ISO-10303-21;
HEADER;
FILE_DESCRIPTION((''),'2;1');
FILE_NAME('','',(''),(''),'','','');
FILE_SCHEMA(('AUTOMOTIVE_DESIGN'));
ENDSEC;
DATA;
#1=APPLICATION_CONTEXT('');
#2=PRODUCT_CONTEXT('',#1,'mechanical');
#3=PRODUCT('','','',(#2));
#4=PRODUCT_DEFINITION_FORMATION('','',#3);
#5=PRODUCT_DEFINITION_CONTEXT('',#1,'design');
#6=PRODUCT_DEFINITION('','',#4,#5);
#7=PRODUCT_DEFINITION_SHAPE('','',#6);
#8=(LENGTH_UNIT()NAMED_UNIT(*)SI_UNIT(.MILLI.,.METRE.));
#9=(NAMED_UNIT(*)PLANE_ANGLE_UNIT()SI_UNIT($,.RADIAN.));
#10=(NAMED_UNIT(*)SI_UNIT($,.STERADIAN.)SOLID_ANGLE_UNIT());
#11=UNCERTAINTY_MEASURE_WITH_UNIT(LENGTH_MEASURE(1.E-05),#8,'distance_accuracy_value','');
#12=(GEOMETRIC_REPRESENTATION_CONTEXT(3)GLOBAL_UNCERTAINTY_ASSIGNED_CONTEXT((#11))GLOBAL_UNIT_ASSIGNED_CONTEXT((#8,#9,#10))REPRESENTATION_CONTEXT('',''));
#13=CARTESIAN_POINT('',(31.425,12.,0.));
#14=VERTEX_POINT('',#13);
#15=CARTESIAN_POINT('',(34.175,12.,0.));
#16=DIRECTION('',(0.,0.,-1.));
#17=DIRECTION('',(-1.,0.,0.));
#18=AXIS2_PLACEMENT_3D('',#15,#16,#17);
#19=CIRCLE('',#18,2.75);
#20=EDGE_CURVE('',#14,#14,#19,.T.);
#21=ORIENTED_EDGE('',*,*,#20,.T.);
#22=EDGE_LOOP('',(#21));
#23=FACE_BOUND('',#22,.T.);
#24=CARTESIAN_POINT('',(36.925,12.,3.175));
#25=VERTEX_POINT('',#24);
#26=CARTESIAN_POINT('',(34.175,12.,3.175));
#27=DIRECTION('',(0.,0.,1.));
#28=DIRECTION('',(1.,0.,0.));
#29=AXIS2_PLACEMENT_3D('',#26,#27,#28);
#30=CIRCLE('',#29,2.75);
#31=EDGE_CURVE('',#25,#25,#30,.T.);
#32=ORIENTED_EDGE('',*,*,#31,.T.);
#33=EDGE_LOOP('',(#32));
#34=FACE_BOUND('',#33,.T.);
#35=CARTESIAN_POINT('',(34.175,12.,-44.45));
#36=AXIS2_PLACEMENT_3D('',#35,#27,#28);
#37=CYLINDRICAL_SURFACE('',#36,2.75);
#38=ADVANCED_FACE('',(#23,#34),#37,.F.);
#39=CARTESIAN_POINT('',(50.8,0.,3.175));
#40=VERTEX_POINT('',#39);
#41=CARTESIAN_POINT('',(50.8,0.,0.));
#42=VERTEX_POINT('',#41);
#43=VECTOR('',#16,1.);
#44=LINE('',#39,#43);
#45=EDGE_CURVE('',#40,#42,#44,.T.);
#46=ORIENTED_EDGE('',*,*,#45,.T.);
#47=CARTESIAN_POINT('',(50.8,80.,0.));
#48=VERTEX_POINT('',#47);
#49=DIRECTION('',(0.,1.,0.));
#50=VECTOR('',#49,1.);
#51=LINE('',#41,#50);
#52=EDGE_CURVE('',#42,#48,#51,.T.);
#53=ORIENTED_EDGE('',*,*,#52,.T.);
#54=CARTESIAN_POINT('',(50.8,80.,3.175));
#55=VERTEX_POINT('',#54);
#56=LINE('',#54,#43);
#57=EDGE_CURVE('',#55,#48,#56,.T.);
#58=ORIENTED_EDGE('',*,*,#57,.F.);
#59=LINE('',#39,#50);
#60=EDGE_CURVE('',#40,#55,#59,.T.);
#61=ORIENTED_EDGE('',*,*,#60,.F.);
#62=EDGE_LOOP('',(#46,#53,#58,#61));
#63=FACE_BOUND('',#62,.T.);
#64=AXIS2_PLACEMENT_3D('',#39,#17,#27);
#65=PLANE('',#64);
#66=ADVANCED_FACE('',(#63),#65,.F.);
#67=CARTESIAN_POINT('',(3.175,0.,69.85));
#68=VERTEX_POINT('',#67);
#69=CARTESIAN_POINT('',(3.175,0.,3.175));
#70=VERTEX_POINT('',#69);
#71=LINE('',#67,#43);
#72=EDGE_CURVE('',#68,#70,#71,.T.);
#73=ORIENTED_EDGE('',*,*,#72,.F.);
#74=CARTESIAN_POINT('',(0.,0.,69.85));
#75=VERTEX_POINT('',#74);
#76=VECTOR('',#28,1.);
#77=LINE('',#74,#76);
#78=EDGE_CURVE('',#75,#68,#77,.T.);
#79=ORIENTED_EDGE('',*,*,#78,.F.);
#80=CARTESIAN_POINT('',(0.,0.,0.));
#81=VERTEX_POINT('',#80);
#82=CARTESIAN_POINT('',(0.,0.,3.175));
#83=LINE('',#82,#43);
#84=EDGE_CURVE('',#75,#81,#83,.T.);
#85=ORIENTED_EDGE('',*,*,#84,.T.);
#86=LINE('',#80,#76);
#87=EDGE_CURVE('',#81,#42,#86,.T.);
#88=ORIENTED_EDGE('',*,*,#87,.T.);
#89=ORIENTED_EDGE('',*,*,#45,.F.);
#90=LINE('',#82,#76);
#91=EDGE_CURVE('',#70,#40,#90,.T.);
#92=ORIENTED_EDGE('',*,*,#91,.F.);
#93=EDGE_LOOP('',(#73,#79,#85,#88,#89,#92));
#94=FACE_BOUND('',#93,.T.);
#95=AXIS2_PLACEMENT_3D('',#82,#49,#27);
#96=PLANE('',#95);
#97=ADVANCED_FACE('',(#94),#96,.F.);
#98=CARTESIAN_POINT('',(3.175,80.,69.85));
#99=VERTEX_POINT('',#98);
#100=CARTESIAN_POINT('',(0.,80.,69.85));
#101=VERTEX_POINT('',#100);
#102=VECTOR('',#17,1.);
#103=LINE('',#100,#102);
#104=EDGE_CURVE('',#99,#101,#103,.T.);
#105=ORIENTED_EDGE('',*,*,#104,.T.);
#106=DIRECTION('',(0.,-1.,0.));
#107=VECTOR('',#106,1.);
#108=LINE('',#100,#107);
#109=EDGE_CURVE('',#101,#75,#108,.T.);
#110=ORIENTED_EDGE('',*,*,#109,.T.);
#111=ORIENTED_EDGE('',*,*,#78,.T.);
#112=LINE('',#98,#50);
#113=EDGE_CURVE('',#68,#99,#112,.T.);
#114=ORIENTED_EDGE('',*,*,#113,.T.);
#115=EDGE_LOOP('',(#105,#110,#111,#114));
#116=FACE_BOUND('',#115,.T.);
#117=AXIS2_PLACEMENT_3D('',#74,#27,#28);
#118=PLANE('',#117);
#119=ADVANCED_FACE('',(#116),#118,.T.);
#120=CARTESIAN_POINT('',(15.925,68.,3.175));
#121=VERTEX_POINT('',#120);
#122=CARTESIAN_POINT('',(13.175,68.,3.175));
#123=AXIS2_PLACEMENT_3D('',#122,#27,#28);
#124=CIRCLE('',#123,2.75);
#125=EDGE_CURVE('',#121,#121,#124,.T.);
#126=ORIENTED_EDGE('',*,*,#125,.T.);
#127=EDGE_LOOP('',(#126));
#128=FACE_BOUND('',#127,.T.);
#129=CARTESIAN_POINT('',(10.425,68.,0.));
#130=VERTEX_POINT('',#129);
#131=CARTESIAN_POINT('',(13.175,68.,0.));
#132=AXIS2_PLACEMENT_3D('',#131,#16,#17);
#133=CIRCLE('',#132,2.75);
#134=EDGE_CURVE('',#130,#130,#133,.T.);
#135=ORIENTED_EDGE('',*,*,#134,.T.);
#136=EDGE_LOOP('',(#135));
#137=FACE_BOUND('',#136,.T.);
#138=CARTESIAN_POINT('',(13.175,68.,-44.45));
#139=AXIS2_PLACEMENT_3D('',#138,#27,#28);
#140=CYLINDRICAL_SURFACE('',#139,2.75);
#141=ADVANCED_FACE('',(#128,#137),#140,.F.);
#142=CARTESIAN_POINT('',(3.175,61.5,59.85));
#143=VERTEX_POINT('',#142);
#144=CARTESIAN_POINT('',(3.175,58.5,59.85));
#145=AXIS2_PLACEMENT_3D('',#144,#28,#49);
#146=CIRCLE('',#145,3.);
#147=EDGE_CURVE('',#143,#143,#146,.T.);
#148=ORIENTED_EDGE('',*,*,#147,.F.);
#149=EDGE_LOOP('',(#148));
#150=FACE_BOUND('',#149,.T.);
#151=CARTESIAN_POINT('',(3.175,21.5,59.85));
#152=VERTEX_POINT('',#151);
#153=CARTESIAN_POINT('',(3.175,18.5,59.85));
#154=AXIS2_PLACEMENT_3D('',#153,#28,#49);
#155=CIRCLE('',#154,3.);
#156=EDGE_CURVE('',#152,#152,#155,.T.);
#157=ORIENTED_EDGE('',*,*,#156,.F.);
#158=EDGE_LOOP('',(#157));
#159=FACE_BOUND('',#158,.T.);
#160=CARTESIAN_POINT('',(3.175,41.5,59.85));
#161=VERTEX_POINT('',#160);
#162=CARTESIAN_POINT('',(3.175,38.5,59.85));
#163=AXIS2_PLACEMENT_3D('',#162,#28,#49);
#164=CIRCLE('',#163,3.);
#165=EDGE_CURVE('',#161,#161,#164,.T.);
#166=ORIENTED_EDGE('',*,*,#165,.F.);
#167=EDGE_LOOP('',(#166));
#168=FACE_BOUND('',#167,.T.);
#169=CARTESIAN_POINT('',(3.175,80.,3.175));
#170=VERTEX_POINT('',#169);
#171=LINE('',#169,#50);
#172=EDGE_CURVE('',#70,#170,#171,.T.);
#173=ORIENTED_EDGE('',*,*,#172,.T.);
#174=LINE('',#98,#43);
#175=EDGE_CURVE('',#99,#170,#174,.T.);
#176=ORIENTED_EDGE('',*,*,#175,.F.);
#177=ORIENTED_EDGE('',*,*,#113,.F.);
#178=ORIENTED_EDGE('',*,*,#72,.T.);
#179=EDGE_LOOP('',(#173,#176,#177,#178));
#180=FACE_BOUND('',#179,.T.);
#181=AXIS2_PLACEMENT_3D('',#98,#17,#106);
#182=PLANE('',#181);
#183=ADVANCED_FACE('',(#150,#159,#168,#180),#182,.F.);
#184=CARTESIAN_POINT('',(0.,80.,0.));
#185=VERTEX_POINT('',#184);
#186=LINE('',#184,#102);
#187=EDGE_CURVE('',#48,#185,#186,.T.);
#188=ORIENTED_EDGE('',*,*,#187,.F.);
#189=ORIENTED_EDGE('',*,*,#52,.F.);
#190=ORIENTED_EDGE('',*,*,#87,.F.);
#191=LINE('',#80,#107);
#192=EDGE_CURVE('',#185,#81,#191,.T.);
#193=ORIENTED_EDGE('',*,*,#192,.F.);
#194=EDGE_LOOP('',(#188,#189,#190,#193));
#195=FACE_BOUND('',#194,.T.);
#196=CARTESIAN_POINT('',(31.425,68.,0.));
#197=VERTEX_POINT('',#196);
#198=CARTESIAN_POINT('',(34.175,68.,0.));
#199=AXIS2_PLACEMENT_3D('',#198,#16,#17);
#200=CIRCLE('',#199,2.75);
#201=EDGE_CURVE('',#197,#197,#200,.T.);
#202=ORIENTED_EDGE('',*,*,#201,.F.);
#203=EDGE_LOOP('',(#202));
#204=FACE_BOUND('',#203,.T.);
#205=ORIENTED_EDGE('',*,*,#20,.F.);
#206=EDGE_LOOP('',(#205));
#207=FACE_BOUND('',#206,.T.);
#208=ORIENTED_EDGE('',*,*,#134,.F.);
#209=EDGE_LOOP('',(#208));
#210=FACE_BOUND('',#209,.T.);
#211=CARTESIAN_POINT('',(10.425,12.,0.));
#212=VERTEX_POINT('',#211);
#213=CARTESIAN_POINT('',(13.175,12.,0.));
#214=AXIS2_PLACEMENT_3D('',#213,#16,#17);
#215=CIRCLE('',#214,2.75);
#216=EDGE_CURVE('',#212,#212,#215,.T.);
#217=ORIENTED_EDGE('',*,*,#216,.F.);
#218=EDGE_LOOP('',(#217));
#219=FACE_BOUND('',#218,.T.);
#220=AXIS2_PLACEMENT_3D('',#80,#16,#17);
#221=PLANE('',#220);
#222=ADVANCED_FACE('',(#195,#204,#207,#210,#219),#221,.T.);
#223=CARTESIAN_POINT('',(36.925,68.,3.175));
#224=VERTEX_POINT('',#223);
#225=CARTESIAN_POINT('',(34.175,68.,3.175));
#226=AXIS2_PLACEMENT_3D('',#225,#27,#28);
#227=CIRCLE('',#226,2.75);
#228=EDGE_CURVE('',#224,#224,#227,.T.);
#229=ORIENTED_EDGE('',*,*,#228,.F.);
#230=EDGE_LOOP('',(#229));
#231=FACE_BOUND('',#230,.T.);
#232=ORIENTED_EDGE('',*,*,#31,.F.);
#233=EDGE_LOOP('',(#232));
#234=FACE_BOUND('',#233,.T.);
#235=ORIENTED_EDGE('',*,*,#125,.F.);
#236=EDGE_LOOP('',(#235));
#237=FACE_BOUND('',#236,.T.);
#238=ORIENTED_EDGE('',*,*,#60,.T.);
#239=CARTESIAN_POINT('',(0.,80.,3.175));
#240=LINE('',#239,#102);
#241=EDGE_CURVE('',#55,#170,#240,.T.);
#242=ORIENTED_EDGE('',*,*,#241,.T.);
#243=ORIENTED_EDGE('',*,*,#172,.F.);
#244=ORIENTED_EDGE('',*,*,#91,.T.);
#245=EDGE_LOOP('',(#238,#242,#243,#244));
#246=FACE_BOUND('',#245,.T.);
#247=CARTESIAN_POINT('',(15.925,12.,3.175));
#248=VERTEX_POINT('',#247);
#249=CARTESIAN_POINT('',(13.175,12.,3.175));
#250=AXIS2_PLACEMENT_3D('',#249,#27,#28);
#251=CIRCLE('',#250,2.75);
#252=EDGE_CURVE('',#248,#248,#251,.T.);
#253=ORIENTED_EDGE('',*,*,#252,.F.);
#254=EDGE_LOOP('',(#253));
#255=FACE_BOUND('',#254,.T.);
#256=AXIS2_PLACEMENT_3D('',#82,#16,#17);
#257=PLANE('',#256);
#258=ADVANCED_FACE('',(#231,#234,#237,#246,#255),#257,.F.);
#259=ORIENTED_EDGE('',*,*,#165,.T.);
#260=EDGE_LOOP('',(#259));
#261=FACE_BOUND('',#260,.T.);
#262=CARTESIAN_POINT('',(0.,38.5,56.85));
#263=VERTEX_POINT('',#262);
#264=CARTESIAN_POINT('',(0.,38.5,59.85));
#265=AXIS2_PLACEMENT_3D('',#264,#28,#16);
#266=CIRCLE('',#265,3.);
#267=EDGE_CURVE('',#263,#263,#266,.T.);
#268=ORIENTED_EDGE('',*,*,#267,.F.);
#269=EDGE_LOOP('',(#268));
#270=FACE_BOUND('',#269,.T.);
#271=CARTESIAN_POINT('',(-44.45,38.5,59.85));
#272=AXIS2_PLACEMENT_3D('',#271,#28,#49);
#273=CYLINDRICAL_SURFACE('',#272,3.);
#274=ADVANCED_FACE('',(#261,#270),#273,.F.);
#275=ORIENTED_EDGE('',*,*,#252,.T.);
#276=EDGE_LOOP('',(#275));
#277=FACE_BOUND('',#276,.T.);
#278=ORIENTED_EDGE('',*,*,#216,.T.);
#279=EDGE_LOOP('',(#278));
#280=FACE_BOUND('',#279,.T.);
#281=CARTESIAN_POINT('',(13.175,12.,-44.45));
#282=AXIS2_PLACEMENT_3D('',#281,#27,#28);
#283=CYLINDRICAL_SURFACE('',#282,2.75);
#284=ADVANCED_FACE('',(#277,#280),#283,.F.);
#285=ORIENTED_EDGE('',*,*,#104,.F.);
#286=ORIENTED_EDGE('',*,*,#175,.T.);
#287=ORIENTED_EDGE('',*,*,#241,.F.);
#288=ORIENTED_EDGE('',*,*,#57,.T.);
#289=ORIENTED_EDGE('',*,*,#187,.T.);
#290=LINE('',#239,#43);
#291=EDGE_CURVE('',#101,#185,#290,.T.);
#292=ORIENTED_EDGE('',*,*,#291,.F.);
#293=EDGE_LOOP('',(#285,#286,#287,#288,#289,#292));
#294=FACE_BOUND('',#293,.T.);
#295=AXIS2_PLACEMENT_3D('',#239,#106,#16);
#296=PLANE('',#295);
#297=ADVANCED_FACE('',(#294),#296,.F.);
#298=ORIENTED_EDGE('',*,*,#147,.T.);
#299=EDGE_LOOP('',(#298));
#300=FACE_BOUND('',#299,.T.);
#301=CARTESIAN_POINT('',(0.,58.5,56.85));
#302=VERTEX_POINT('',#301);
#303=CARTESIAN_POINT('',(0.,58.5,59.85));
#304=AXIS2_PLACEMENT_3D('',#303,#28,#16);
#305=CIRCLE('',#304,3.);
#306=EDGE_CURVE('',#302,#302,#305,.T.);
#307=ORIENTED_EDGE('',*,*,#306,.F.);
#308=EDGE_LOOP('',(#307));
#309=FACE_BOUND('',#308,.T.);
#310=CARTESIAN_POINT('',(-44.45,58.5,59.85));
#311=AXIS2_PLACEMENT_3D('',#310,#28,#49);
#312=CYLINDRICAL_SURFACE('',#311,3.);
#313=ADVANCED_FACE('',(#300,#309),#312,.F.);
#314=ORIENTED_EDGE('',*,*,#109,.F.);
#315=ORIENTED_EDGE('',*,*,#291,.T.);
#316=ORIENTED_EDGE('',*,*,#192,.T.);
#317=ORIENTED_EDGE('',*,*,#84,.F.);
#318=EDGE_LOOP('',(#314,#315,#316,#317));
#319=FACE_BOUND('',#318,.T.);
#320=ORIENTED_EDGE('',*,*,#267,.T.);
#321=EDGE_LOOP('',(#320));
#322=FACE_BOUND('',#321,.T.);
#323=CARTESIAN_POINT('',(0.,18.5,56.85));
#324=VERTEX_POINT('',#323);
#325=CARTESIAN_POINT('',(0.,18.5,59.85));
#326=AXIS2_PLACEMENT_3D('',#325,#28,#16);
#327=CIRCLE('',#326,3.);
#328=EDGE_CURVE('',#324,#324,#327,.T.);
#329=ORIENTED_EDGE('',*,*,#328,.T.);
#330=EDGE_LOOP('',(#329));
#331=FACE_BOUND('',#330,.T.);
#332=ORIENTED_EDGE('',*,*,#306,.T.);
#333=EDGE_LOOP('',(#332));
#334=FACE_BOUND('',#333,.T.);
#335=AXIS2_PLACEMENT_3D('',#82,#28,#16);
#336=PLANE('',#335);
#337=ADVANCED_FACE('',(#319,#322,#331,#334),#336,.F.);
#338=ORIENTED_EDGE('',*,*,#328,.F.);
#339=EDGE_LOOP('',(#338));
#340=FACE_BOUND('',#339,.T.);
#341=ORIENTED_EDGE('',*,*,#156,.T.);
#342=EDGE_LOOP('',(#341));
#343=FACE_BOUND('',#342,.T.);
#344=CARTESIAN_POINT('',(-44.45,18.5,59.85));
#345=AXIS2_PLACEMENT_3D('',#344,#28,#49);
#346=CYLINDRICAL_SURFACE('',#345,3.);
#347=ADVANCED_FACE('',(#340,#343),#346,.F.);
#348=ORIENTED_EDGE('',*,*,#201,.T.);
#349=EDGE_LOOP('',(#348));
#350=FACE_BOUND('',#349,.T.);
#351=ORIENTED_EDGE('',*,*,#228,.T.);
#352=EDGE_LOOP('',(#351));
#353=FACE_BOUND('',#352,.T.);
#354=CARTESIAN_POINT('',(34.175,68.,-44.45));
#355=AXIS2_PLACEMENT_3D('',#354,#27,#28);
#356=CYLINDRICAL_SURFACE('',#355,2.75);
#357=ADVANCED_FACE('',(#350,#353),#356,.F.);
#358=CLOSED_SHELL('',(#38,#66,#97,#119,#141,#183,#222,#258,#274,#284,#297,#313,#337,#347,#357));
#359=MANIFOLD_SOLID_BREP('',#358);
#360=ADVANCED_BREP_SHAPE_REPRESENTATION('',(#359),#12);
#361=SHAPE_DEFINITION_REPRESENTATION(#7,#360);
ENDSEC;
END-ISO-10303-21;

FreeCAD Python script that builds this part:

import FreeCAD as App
import Part
import Sketcher

V = App.Vector
Q = App.Units.Quantity

doc = App.newDocument("Part")
body = doc.addObject("PartDesign::Body", "Body")

sketch1 = body.newObject("Sketcher::SketchObject", "Sketch")
sketch1.AttachmentSupport = (doc.getObject("XY_Plane"), [""])
sketch1.MapMode = "FlatFace"
sketch1.addGeometry(Part.LineSegment(V(0, 80, 0), V(0, 0, 0)), False)
sketch1.addGeometry(Part.LineSegment(V(0, 0, 0), V(51, 0, 0)), False)
sketch1.addGeometry(Part.LineSegment(V(51, 0, 0), V(51, 80, 0)), False)
sketch1.addGeometry(Part.LineSegment(V(51, 80, 0), V(0, 80, 0)), False)
sketch1.addConstraint(Sketcher.Constraint("Coincident", 0, 2, 1, 1))
sketch1.addConstraint(Sketcher.Constraint("Coincident", 1, 2, 2, 1))
sketch1.addConstraint(Sketcher.Constraint("Coincident", 2, 2, 3, 1))
sketch1.addConstraint(Sketcher.Constraint("Coincident", 3, 2, 0, 1))
sketch1.addConstraint(Sketcher.Constraint("Vertical", 0))
sketch1.addConstraint(Sketcher.Constraint("Horizontal", 1))
sketch1.addConstraint(Sketcher.Constraint("Vertical", 2))
sketch1.addConstraint(Sketcher.Constraint("Horizontal", 3))
sketch1.addConstraint(Sketcher.Constraint("Coincident", 0, 2, -1, 1))
sketch1.addConstraint(Sketcher.Constraint("DistanceX", 1, 1, 1, 2, Q("2 in")))
sketch1.addConstraint(Sketcher.Constraint("DistanceY", 0, 2, 0, 1, 80.0))
pad1 = body.newObject("PartDesign::Pad", "Pad")
pad1.Profile = sketch1
pad1.Length = Q("0.125 in")

sketch2 = body.newObject("Sketcher::SketchObject", "Sketch001")
sketch2.AttachmentSupport = (doc.getObject("XY_Plane"), [""])
sketch2.MapMode = "FlatFace"
sketch2.AttachmentOffset = App.Placement(V(0, 0, 0.125 * 25.4), App.Rotation())
sketch2.addGeometry(Part.LineSegment(V(0, 80, 0), V(0, 0, 0)), False)
sketch2.addGeometry(Part.LineSegment(V(0, 0, 0), V(3.2, 0, 0)), False)
sketch2.addGeometry(Part.LineSegment(V(3.2, 0, 0), V(3.2, 80, 0)), False)
sketch2.addGeometry(Part.LineSegment(V(3.2, 80, 0), V(0, 80, 0)), False)
sketch2.addConstraint(Sketcher.Constraint("Coincident", 0, 2, 1, 1))
sketch2.addConstraint(Sketcher.Constraint("Coincident", 1, 2, 2, 1))
sketch2.addConstraint(Sketcher.Constraint("Coincident", 2, 2, 3, 1))
sketch2.addConstraint(Sketcher.Constraint("Coincident", 3, 2, 0, 1))
sketch2.addConstraint(Sketcher.Constraint("Vertical", 0))
sketch2.addConstraint(Sketcher.Constraint("Horizontal", 1))
sketch2.addConstraint(Sketcher.Constraint("Vertical", 2))
sketch2.addConstraint(Sketcher.Constraint("Horizontal", 3))
sketch2.addConstraint(Sketcher.Constraint("Coincident", 0, 2, -1, 1))
sketch2.addConstraint(Sketcher.Constraint("DistanceX", 1, 1, 1, 2, Q("0.125 in")))
sketch2.addConstraint(Sketcher.Constraint("DistanceY", 0, 2, 0, 1, 80.0))
pad2 = body.newObject("PartDesign::Pad", "Pad001")
pad2.Profile = sketch2
pad2.Length = Q("2.625 in")

sketch3 = body.newObject("Sketcher::SketchObject", "Sketch002")
sketch3.AttachmentSupport = (doc.getObject("XY_Plane"), [""])
sketch3.MapMode = "FlatFace"
sketch3.AttachmentOffset = App.Placement(V(0, 0, 0.125 * 25.4), App.Rotation())
sketch3.addGeometry(Part.Circle(V(13.2, 68, 0), V(0, 0, 1), 2.8), False)
sketch3.addGeometry(Part.Circle(V(13.2, 12, 0), V(0, 0, 1), 2.8), False)
sketch3.addGeometry(Part.Circle(V(34.2, 68, 0), V(0, 0, 1), 2.8), False)
sketch3.addGeometry(Part.Circle(V(34.2, 12, 0), V(0, 0, 1), 2.8), False)
sketch3.addConstraint(Sketcher.Constraint("Equal", 0, 1))
sketch3.addConstraint(Sketcher.Constraint("Equal", 1, 2))
sketch3.addConstraint(Sketcher.Constraint("Equal", 2, 3))
sketch3.addConstraint(Sketcher.Constraint("Horizontal", 0, 3, 2, 3))
sketch3.addConstraint(Sketcher.Constraint("Horizontal", 1, 3, 3, 3))
sketch3.addConstraint(Sketcher.Constraint("Vertical", 0, 3, 1, 3))
sketch3.addConstraint(Sketcher.Constraint("Vertical", 2, 3, 3, 3))
sketch3.addConstraint(Sketcher.Constraint("Diameter", 0, 5.5))
sketch3.addConstraint(Sketcher.Constraint("DistanceX", -1, 1, 0, 3, 13.175))
sketch3.addConstraint(Sketcher.Constraint("DistanceY", -1, 1, 0, 3, 68.0))
sketch3.addConstraint(Sketcher.Constraint("DistanceY", -1, 1, 1, 3, 12.0))
sketch3.addConstraint(Sketcher.Constraint("DistanceX", -1, 1, 2, 3, 34.175))
pocket1 = body.newObject("PartDesign::Pocket", "Pocket")
pocket1.Profile = sketch3
pocket1.Length = Q("1.875 in")

sketch4 = body.newObject("Sketcher::SketchObject", "Sketch003")
sketch4.AttachmentSupport = (doc.getObject("YZ_Plane"), [""])
sketch4.MapMode = "FlatFace"
sketch4.AttachmentOffset = App.Placement(V(0, 0, 0.125 * 25.4), App.Rotation())
sketch4.addGeometry(Part.Circle(V(18.5, 59.9, 0), V(0, 0, 1), 3), False)
sketch4.addGeometry(Part.Circle(V(38.5, 59.9, 0), V(0, 0, 1), 3), False)
sketch4.addGeometry(Part.Circle(V(58.5, 59.9, 0), V(0, 0, 1), 3), False)
sketch4.addConstraint(Sketcher.Constraint("Equal", 0, 1))
sketch4.addConstraint(Sketcher.Constraint("Equal", 1, 2))
sketch4.addConstraint(Sketcher.Constraint("Horizontal", 0, 3, 1, 3))
sketch4.addConstraint(Sketcher.Constraint("Horizontal", 1, 3, 2, 3))
sketch4.addConstraint(Sketcher.Constraint("Diameter", 0, 6.0))
sketch4.addConstraint(Sketcher.Constraint("DistanceX", -1, 1, 0, 3, 18.5))
sketch4.addConstraint(Sketcher.Constraint("DistanceY", -1, 1, 0, 3, 59.85))
sketch4.addConstraint(Sketcher.Constraint("DistanceX", -1, 1, 1, 3, 38.5))
sketch4.addConstraint(Sketcher.Constraint("DistanceX", -1, 1, 2, 3, 58.5))
pocket2 = body.newObject("PartDesign::Pocket", "Pocket001")
pocket2.Profile = sketch4
pocket2.Length = Q("1.875 in")

doc.recompute()
